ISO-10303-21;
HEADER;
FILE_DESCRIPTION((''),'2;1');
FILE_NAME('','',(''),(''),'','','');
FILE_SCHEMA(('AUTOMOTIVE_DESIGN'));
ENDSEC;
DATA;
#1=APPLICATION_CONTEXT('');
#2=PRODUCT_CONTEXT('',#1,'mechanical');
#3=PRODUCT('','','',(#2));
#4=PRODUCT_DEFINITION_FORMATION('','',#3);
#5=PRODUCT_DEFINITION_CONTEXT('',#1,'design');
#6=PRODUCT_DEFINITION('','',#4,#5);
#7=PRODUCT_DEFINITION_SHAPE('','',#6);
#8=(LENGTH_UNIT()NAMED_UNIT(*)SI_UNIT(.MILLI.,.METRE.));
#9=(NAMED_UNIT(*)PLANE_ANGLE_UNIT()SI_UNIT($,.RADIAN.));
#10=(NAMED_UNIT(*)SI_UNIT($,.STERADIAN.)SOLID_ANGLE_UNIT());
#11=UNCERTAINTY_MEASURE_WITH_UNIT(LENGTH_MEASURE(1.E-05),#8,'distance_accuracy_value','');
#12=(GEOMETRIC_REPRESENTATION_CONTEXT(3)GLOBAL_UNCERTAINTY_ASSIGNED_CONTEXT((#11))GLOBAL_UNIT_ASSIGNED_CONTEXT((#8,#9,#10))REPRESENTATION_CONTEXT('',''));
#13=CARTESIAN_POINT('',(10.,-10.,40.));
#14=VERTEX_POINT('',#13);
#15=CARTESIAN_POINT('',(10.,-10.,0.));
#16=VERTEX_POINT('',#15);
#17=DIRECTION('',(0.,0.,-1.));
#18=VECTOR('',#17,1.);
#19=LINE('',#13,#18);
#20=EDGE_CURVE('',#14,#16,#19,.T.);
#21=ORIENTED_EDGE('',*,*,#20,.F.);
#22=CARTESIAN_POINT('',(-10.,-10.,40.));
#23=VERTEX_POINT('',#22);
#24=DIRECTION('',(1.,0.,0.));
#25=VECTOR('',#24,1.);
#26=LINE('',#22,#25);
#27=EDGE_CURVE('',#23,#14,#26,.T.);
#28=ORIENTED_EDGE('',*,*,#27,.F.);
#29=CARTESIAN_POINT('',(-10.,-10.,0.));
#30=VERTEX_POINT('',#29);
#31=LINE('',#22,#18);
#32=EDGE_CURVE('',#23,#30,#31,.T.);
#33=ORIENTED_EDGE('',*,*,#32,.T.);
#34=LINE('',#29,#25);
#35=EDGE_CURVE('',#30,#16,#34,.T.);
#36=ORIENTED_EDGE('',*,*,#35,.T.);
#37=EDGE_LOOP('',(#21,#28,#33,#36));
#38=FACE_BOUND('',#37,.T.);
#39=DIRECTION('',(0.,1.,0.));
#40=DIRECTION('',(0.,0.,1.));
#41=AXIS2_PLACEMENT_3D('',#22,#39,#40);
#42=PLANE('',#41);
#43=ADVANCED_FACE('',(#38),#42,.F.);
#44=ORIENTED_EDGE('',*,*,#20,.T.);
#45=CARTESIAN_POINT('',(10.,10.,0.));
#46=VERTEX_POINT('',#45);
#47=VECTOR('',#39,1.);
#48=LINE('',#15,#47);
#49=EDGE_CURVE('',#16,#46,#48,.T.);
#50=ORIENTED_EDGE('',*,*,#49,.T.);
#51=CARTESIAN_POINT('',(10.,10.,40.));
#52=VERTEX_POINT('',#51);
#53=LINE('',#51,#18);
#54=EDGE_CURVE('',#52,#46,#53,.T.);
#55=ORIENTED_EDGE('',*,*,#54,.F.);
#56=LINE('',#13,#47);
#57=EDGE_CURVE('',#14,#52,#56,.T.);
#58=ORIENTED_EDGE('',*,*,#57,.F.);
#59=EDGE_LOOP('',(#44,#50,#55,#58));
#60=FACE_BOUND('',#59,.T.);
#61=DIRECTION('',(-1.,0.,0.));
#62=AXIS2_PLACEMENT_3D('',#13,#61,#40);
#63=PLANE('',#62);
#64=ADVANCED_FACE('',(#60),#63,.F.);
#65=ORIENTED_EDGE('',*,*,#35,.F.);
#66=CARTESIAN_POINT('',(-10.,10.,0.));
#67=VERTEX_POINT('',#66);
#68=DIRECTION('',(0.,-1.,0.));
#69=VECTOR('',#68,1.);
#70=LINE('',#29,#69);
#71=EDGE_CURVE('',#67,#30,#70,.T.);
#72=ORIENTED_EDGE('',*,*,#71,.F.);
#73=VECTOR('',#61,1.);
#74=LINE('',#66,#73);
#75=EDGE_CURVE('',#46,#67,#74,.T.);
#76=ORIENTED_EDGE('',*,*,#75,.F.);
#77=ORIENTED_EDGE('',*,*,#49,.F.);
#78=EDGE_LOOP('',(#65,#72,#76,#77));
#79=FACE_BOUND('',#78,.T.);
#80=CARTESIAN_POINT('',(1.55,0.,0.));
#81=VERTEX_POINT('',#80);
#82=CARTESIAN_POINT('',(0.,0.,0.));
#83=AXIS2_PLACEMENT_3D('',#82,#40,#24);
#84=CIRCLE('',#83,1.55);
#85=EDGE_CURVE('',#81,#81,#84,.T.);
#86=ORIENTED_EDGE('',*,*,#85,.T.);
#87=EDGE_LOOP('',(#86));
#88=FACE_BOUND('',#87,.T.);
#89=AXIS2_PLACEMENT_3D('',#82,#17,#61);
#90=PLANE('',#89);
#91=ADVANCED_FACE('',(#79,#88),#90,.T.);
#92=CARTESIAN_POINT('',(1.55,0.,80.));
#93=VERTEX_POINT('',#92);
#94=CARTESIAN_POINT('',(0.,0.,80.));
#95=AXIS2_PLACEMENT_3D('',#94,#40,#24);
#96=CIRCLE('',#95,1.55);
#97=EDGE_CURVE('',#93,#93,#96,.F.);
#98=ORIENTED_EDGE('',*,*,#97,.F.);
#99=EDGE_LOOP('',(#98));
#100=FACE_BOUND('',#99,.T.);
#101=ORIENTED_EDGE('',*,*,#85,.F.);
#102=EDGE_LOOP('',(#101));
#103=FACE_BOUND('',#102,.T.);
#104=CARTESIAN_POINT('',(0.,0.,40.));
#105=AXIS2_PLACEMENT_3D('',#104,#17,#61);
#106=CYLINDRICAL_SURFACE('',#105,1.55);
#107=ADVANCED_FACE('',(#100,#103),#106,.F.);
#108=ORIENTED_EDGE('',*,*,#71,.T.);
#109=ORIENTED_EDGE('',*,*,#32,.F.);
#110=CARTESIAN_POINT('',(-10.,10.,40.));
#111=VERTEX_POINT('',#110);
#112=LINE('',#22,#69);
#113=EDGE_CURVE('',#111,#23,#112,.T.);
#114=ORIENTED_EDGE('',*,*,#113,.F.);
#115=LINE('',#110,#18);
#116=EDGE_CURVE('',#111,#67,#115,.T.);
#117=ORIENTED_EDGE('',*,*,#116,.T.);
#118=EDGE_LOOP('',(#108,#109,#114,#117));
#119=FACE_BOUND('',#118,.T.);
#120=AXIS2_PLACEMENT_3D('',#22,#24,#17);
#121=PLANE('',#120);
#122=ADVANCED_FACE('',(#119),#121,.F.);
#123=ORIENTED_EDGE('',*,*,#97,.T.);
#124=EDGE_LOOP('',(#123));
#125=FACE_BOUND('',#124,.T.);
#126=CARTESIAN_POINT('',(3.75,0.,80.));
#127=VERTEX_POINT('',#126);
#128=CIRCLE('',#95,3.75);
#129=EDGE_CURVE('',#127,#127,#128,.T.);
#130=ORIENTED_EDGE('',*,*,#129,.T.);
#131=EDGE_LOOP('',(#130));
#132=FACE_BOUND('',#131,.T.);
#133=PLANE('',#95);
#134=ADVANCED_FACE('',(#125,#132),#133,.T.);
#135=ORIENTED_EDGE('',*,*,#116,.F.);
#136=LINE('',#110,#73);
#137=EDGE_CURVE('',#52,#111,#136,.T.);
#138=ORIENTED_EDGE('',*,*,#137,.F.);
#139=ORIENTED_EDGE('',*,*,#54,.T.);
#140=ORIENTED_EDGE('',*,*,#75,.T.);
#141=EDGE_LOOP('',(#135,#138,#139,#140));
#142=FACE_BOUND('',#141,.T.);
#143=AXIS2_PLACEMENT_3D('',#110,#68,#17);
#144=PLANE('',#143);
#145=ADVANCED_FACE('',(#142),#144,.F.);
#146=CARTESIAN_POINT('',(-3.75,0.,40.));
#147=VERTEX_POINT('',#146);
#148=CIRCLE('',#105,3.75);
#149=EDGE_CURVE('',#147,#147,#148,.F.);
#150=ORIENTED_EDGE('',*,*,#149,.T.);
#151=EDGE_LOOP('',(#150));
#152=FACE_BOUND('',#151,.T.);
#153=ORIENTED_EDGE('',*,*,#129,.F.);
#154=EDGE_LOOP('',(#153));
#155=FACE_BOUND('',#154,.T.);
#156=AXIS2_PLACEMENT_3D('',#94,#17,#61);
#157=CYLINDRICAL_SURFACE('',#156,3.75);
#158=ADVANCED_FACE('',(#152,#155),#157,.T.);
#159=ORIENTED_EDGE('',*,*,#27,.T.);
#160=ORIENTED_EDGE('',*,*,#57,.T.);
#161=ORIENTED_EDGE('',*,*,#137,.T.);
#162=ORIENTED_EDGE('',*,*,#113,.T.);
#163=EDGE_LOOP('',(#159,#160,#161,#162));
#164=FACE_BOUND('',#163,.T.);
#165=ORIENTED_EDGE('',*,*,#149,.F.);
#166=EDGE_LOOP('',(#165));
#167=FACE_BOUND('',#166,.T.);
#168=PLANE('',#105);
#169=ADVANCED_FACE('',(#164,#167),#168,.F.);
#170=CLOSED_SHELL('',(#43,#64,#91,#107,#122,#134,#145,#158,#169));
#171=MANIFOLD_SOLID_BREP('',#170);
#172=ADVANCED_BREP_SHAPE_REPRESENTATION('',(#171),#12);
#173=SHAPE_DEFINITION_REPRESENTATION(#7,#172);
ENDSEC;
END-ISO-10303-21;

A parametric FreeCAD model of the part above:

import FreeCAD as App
import Part
import Sketcher

V = App.Vector
Q = App.Units.Quantity


def add_polygon(sketch, points):
    """Adds a closed chain of lines whose ends are joined by coincident constraints."""
    first, n = sketch.GeometryCount, len(points)
    for a, b in zip(points, points[1:] + points[:1]):
        sketch.addGeometry(Part.LineSegment(App.Vector(*a, 0), App.Vector(*b, 0)), False)
    for i in range(n):
        sketch.addConstraint(Sketcher.Constraint("Coincident", first + i, 2, first + (i + 1) % n, 1))

doc = App.newDocument("Part")
body = doc.addObject("PartDesign::Body", "Body")

# Sketch on XY plane
sketch1 = body.newObject("Sketcher::SketchObject", "Sketch")
sketch1.AttachmentSupport = (doc.getObject("XY_Plane"), [""])
sketch1.MapMode = "FlatFace"
add_polygon(sketch1, [(-10, 10), (-10, -10), (10, -10), (10, 10)])  # lines 0-3
sketch1.addGeometry(Part.Circle(V(0, 0, 0), V(0, 0, 1), 1.6), False)  # 4
sketch1.addConstraint(Sketcher.Constraint("Vertical", 0))
sketch1.addConstraint(Sketcher.Constraint("Horizontal", 1))
sketch1.addConstraint(Sketcher.Constraint("Vertical", 2))
sketch1.addConstraint(Sketcher.Constraint("Horizontal", 3))
sketch1.addConstraint(Sketcher.Constraint("Coincident", 4, 3, -1, 1))
sketch1.addConstraint(Sketcher.Constraint("Symmetric", 0, 2, 2, 2, -1, 1))
sketch1.addConstraint(Sketcher.Constraint("Equal", 3, 0))
sketch1.addConstraint(Sketcher.Constraint("Diameter", 4, Q("3.1 mm")))
sketch1.addConstraint(Sketcher.Constraint("DistanceX", 1, 1, 1, 2, Q("20 mm")))
pad1 = body.newObject("PartDesign::Pad", "Pad")
pad1.Profile = sketch1
pad1.Length = 40

# Sketch on XY plane
sketch2 = body.newObject("Sketcher::SketchObject", "Sketch001")
sketch2.AttachmentSupport = (doc.getObject("XY_Plane"), [""])
sketch2.MapMode = "FlatFace"
sketch2.AttachmentOffset = App.Placement(V(0, 0, 40), App.Rotation())
sketch2.addGeometry(Part.Circle(V(0, 0, 0), V(0, 0, 1), 3.8), False)
sketch2.addGeometry(Part.Circle(V(0, 0, 0), V(0, 0, 1), 1.6), False)
sketch2.addConstraint(Sketcher.Constraint("Coincident", 0, 3, -1, 1))
sketch2.addConstraint(Sketcher.Constraint("Coincident", 1, 3, -1, 1))
sketch2.addConstraint(Sketcher.Constraint("Diameter", 0, Q("7.5 mm")))
sketch2.addConstraint(Sketcher.Constraint("Diameter", 1, Q("3.1 mm")))
pad2 = body.newObject("PartDesign::Pad", "Pad001")
pad2.Profile = sketch2
pad2.Length = 40

doc.recompute()
